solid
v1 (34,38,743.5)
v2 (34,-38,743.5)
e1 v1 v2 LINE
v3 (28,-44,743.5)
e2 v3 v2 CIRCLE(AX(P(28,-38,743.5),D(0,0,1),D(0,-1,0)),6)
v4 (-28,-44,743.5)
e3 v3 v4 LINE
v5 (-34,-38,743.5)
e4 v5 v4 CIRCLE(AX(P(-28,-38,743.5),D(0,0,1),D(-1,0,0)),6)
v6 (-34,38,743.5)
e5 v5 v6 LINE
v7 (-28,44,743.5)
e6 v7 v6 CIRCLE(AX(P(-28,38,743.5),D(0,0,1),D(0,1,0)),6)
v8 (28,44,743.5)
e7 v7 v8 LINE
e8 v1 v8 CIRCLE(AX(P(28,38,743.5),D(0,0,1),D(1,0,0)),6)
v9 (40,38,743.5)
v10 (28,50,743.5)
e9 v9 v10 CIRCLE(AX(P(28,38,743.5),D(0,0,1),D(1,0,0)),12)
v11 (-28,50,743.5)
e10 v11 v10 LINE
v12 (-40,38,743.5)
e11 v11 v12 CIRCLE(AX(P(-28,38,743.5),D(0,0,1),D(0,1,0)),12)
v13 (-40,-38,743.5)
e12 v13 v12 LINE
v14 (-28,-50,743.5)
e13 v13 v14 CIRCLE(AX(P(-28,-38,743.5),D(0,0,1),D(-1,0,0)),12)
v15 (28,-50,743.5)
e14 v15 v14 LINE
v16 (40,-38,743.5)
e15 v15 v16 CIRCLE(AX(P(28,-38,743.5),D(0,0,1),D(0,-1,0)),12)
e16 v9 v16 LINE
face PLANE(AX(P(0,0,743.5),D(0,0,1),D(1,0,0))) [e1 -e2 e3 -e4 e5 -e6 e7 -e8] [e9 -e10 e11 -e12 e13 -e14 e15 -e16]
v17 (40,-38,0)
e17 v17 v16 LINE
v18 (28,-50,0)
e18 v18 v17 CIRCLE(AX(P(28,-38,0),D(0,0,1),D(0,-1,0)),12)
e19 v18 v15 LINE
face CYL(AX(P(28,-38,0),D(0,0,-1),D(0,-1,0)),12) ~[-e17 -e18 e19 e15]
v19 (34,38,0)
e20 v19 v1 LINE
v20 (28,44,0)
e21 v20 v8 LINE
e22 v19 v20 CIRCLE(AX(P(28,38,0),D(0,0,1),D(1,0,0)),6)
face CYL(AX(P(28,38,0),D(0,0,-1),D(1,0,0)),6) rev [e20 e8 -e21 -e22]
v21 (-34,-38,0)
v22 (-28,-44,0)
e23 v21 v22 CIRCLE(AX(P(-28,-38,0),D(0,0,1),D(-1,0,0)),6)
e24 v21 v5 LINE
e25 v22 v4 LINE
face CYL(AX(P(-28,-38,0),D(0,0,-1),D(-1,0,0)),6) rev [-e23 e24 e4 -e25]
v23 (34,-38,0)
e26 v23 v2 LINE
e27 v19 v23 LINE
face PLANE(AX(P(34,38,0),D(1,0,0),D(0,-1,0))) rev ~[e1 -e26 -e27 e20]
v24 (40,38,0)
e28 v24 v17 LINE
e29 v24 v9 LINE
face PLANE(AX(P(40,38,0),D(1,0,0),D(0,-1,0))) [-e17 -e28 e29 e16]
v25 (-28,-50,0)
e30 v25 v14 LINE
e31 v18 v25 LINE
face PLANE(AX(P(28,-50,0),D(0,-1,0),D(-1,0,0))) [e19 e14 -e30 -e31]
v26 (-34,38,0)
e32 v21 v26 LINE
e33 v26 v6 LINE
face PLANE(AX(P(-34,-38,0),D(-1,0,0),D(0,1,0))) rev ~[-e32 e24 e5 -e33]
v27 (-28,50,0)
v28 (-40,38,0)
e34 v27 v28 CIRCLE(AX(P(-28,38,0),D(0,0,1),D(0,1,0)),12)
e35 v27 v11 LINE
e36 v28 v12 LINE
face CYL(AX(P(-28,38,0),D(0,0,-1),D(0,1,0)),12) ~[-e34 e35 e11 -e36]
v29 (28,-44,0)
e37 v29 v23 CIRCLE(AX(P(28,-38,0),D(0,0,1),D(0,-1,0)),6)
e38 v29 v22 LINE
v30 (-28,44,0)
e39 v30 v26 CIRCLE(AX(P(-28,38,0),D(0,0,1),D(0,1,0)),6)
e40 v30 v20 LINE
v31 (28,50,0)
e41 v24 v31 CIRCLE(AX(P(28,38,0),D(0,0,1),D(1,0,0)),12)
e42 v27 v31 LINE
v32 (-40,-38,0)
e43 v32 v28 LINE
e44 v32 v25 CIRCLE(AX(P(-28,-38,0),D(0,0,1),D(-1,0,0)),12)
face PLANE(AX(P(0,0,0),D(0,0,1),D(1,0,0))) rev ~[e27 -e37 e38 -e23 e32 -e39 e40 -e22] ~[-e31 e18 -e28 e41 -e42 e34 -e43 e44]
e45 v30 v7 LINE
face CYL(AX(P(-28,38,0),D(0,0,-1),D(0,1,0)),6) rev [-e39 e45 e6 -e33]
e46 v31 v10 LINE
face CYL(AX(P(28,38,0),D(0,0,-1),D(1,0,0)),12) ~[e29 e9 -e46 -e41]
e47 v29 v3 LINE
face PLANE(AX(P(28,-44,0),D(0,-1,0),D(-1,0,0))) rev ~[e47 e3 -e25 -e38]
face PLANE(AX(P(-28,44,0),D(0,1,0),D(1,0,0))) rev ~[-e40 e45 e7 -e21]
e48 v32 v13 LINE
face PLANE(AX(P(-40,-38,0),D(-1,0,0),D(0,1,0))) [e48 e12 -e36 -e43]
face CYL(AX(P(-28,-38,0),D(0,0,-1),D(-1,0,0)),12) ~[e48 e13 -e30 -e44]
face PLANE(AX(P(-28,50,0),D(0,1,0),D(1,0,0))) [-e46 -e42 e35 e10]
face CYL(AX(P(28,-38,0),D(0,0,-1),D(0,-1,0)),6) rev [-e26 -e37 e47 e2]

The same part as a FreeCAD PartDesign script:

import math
import FreeCAD as App
import Part
import Sketcher

doc = App.newDocument("Part")
params = doc.addObject("Spreadsheet::Sheet", "Params")
for row, (alias, value) in enumerate([
    ("sketch1_radius", "12 mm"),
    ("sketch1_radius2", "6 mm"),
    ("pad1_length", "743.5 mm"),
], start=1):
    params.set(f"A{row}", alias)
    params.set(f"B{row}", "=" + value)
    params.setAlias(f"B{row}", alias)

body = doc.addObject("PartDesign::Body", "Body")

sketch1 = body.newObject("Sketcher::SketchObject", "Sketch")
sketch1.AttachmentSupport = (doc.getObject("XY_Plane"), [""])
sketch1.MapMode = "FlatFace"
sketch1.addGeometry([
    Part.LineSegment(App.Vector(-40, 38, 0), App.Vector(-40, -38, 0)),
    Part.ArcOfCircle(Part.Circle(App.Vector(-28, -38, 0), App.Vector(0, 0, 1), 12), math.radians(180), math.radians(270)),
    Part.LineSegment(App.Vector(-28, -50, 0), App.Vector(28, -50, 0)),
    Part.ArcOfCircle(Part.Circle(App.Vector(28, -38, 0), App.Vector(0, 0, 1), 12), math.radians(-90), math.radians(0)),
    Part.LineSegment(App.Vector(40, -38, 0), App.Vector(40, 38, 0)),
    Part.ArcOfCircle(Part.Circle(App.Vector(28, 38, 0), App.Vector(0, 0, 1), 12), math.radians(0), math.radians(90)),
    Part.LineSegment(App.Vector(28, 50, 0), App.Vector(-28, 50, 0)),
    Part.ArcOfCircle(Part.Circle(App.Vector(-28, 38, 0), App.Vector(0, 0, 1), 12), math.radians(90), math.radians(180)),
    Part.ArcOfCircle(Part.Circle(App.Vector(-28, 38, 0), App.Vector(0, 0, 1), 6), math.radians(90), math.radians(180)),
    Part.LineSegment(App.Vector(-28, 44, 0), App.Vector(28, 44, 0)),
    Part.ArcOfCircle(Part.Circle(App.Vector(28, 38, 0), App.Vector(0, 0, 1), 6), math.radians(0), math.radians(90)),
    Part.LineSegment(App.Vector(34, 38, 0), App.Vector(34, -38, 0)),
    Part.ArcOfCircle(Part.Circle(App.Vector(28, -38, 0), App.Vector(0, 0, 1), 6), math.radians(-90), math.radians(0)),
    Part.LineSegment(App.Vector(28, -44, 0), App.Vector(-28, -44, 0)),
    Part.ArcOfCircle(Part.Circle(App.Vector(-28, -38, 0), App.Vector(0, 0, 1), 6), math.radians(180), math.radians(270)),
    Part.LineSegment(App.Vector(-34, -38, 0), App.Vector(-34, 38, 0)),
], False)
sketch1.addConstraint([
    Sketcher.Constraint("Tangent", 0, 2, 1, 1),
    Sketcher.Constraint("Tangent", 1, 2, 2, 1),
    Sketcher.Constraint("Tangent", 2, 2, 3, 1),
    Sketcher.Constraint("Tangent", 3, 2, 4, 1),
    Sketcher.Constraint("Tangent", 4, 2, 5, 1),
    Sketcher.Constraint("Tangent", 5, 2, 6, 1),
    Sketcher.Constraint("Tangent", 6, 2, 7, 1),
    Sketcher.Constraint("Tangent", 7, 2, 0, 1),
    Sketcher.Constraint("Tangent", 8, 1, 9, 1),
    Sketcher.Constraint("Tangent", 9, 2, 10, 2),
    Sketcher.Constraint("Tangent", 10, 1, 11, 1),
    Sketcher.Constraint("Tangent", 11, 2, 12, 2),
    Sketcher.Constraint("Tangent", 12, 1, 13, 1),
    Sketcher.Constraint("Tangent", 13, 2, 14, 2),
    Sketcher.Constraint("Tangent", 14, 1, 15, 1),
    Sketcher.Constraint("Tangent", 15, 2, 8, 2),
    Sketcher.Constraint("Vertical", 0),
    Sketcher.Constraint("Horizontal", 2),
    Sketcher.Constraint("Vertical", 4),
    Sketcher.Constraint("Horizontal", 6),
    Sketcher.Constraint("Horizontal", 9),
    Sketcher.Constraint("Vertical", 11),
    Sketcher.Constraint("Horizontal", 13),
    Sketcher.Constraint("Vertical", 15),
    Sketcher.Constraint("Coincident", 8, 3, 7, 3),
    Sketcher.Constraint("Coincident", 10, 3, 5, 3),
    Sketcher.Constraint("Coincident", 12, 3, 3, 3),
    Sketcher.Constraint("Equal", 1, 3),
    Sketcher.Constraint("Equal", 3, 5),
    Sketcher.Constraint("Equal", 5, 7),
    Sketcher.Constraint("Equal", 12, 14),
    Sketcher.Constraint("Symmetric", 1, 3, 5, 3, -1, 1),
    Sketcher.Constraint("Radius", 1, 12.0),
    Sketcher.Constraint("Radius", 8, 6.0),
    Sketcher.Constraint("DistanceX", 0, 2, -1, 1, 40.0),
    Sketcher.Constraint("DistanceY", 1, 2, -1, 1, 50.0),
])
sketch1.setExpression("Constraints[32]", "Params.sketch1_radius")
sketch1.setExpression("Constraints[33]", "Params.sketch1_radius2")
pad1 = body.newObject("PartDesign::Pad", "Pad")
pad1.Profile = sketch1
pad1.setExpression("Length", "Params.pad1_length")

doc.recompute()
